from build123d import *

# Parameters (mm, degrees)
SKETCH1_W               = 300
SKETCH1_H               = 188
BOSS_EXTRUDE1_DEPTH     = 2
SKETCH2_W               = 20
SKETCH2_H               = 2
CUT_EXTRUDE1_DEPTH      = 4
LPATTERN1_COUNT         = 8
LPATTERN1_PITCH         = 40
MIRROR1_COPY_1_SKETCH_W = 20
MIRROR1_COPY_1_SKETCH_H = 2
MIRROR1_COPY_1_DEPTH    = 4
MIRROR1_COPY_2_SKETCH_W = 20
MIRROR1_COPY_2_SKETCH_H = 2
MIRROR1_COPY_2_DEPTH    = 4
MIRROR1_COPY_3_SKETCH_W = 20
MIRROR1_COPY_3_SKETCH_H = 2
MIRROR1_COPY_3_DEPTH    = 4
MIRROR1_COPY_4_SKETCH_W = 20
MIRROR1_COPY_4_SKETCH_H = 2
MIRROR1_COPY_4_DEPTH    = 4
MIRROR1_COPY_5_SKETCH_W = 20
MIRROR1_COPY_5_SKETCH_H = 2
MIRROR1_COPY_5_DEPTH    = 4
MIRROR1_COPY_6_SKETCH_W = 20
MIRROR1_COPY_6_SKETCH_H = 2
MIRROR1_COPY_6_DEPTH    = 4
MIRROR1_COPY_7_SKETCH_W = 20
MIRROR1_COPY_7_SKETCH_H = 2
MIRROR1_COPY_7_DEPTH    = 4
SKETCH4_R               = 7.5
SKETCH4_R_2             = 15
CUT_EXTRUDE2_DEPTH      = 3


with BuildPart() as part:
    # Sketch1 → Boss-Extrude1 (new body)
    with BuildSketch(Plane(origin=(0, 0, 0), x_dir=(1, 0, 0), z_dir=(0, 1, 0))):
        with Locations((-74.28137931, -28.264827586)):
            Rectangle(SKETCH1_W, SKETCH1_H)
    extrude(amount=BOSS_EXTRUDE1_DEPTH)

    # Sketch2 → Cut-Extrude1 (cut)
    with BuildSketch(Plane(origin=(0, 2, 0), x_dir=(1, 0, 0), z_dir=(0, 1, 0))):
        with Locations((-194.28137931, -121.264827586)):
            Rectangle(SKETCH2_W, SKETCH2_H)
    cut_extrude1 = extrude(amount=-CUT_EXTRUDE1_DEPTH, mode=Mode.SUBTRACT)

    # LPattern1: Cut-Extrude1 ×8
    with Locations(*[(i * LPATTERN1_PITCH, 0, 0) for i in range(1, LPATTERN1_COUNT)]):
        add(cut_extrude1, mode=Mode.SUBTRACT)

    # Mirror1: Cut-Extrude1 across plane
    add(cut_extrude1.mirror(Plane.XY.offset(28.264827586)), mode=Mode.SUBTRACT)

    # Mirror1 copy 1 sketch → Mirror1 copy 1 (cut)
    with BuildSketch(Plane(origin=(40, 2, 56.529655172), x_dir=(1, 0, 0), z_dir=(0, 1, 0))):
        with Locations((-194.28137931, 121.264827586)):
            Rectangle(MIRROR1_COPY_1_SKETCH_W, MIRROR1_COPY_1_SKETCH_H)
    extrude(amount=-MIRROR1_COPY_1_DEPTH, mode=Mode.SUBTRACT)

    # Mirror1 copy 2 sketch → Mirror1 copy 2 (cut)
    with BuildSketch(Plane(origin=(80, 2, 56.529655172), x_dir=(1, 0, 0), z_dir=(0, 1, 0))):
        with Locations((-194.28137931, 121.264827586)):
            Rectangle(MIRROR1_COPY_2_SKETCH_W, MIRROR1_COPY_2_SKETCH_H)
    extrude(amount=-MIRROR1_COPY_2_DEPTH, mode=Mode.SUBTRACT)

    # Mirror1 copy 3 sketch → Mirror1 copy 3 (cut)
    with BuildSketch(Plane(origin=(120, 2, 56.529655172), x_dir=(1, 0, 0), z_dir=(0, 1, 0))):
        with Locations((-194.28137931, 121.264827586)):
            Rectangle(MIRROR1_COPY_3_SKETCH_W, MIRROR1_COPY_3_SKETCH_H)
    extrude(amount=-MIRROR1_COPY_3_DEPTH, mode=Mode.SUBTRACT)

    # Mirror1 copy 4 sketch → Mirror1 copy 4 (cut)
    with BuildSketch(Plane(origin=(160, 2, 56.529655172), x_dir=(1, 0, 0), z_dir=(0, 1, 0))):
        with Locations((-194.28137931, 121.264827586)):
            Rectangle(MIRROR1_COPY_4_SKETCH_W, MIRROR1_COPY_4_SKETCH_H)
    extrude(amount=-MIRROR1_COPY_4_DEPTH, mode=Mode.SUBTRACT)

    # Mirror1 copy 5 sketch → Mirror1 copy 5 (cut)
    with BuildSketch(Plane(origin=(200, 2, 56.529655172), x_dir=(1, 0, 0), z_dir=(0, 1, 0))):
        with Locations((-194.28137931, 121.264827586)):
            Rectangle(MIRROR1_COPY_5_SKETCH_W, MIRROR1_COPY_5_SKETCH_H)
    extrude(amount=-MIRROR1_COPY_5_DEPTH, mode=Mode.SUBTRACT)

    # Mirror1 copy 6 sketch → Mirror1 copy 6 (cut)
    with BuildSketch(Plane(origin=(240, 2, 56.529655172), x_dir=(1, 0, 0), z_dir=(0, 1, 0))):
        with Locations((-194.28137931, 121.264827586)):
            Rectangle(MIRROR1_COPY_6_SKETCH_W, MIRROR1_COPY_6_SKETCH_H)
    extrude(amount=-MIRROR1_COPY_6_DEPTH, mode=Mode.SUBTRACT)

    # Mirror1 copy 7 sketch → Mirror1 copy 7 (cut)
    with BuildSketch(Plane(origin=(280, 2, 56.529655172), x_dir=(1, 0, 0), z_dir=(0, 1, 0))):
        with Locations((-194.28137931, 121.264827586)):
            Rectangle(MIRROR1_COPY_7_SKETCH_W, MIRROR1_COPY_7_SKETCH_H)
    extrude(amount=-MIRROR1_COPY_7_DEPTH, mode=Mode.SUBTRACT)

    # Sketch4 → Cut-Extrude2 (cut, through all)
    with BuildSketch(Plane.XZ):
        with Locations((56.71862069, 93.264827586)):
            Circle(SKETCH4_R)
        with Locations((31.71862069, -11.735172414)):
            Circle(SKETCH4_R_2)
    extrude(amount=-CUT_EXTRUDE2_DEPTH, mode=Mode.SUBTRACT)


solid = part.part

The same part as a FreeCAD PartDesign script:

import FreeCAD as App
import Part
import Sketcher
from FreeCAD import Vector


def add_polygon(sketch, points):
    """Adds a closed chain of lines whose ends are joined by coincident constraints."""
    first, n = sketch.GeometryCount, len(points)
    for a, b in zip(points, points[1:] + points[:1]):
        sketch.addGeometry(Part.LineSegment(App.Vector(*a, 0), App.Vector(*b, 0)), False)
    for i in range(n):
        sketch.addConstraint(Sketcher.Constraint("Coincident", first + i, 2, first + (i + 1) % n, 1))

doc = App.newDocument("Part")
params = doc.addObject("Spreadsheet::Sheet", "Params")
for row, (alias, value) in enumerate([
    ("sketch1_width", "300 mm"),
    ("sketch1_height", "188 mm"),
    ("pad1_length", "2 mm"),
    ("sketch2_width", "20 mm"),
    ("sketch2_height", "2 mm"),
    ("pocket1_length", "4 mm"),
    ("linearpattern_pitch", "40 mm"),
    ("sketch3_width", "20 mm"),
    ("sketch3_height", "2 mm"),
    ("pocket2_length", "4 mm"),
    ("sketch4_width", "20 mm"),
    ("sketch4_height", "2 mm"),
    ("pocket3_length", "4 mm"),
    ("sketch5_width", "20 mm"),
    ("sketch5_height", "2 mm"),
    ("pocket4_length", "4 mm"),
    ("sketch6_width", "20 mm"),
    ("sketch6_height", "2 mm"),
    ("pocket5_length", "4 mm"),
    ("sketch7_width", "20 mm"),
    ("sketch7_height", "2 mm"),
    ("pocket6_length", "4 mm"),
    ("sketch8_width", "20 mm"),
    ("sketch8_height", "2 mm"),
    ("pocket7_length", "4 mm"),
    ("sketch9_width", "20 mm"),
    ("sketch9_height", "2 mm"),
    ("pocket8_length", "4 mm"),
    ("sketch10_diameter", "15 mm"),
    ("sketch10_diameter2", "30 mm"),
], start=1):
    params.set(f"A{row}", alias)
    params.set(f"B{row}", "=" + value)
    params.setAlias(f"B{row}", alias)

body = doc.addObject("PartDesign::Body", "Body")

# Sketch on XZ plane
sketch1 = doc.addObject("Sketcher::SketchObject", "Sketch")
body.addObject(sketch1)
sketch1.AttachmentSupport = (doc.XZ_Plane, [""])
sketch1.MapMode = "FlatFace"
add_polygon(sketch1, [(-224, -66), (-224, 122), (76, 122), (76, -66)])  # lines 0-3
sketch1.addConstraint(Sketcher.Constraint("Vertical", 0))
sketch1.addConstraint(Sketcher.Constraint("Horizontal", 1))
sketch1.addConstraint(Sketcher.Constraint("Vertical", 2))
sketch1.addConstraint(Sketcher.Constraint("Horizontal", 3))
sketch1.addConstraint(Sketcher.Constraint("DistanceX", 1, 1, 1, 2, 300.0))
sketch1.addConstraint(Sketcher.Constraint("DistanceY", 0, 1, 0, 2, 188.0))
sketch1.addConstraint(Sketcher.Constraint("DistanceX", 0, 2, -1, 1, 224.281379))
sketch1.addConstraint(Sketcher.Constraint("DistanceY", -1, 1, 0, 2, 122.264828))
sketch1.setExpression("Constraints[8]", "Params.sketch1_width")
sketch1.setExpression("Constraints[9]", "Params.sketch1_height")
pad1 = doc.addObject("PartDesign::Pad", "Pad")
body.addObject(pad1)
pad1.Profile = sketch1
pad1.setExpression("Length", "Params.pad1_length")
pad1.Reversed = True

# Sketch on XZ plane
sketch2 = doc.addObject("Sketcher::SketchObject", "Sketch001")
body.addObject(sketch2)
sketch2.AttachmentSupport = (doc.XZ_Plane, [""])
sketch2.MapMode = "FlatFace"
sketch2.AttachmentOffset = App.Placement(Vector(0, 0, -2), App.Rotation())
add_polygon(sketch2, [(-204.3, 120.3), (-204.3, 122.3), (-184.3, 122.3), (-184.3, 120.3)])  # lines 0-3
sketch2.addConstraint(Sketcher.Constraint("Vertical", 0))
sketch2.addConstraint(Sketcher.Constraint("Horizontal", 1))
sketch2.addConstraint(Sketcher.Constraint("Vertical", 2))
sketch2.addConstraint(Sketcher.Constraint("Horizontal", 3))
sketch2.addConstraint(Sketcher.Constraint("DistanceX", 1, 1, 1, 2, 20.0))
sketch2.addConstraint(Sketcher.Constraint("DistanceY", 0, 1, 0, 2, 2.0))
sketch2.addConstraint(Sketcher.Constraint("DistanceX", 0, 2, -1, 1, 204.281379))
sketch2.addConstraint(Sketcher.Constraint("DistanceY", -1, 1, 0, 2, 122.264828))
sketch2.setExpression("Constraints[8]", "Params.sketch2_width")
sketch2.setExpression("Constraints[9]", "Params.sketch2_height")
pocket1 = doc.addObject("PartDesign::Pocket", "Pocket")
body.addObject(pocket1)
pocket1.Profile = sketch2
pocket1.setExpression("Length", "Params.pocket1_length")
pocket1.Reversed = True
doc.recompute()

linearpattern = doc.addObject("PartDesign::LinearPattern", "LinearPattern")
body.addObject(linearpattern)
linearpattern.Originals = [pocket1]
linearpattern.Direction = (doc.X_Axis, [""])
linearpattern.Mode = "offset"
linearpattern.setExpression("Offset", "Params.linearpattern_pitch")
linearpattern.Occurrences = 8
body.Tip = linearpattern
doc.recompute()

datumplane = doc.addObject("PartDesign::Plane", "DatumPlane")
body.addObject(datumplane)
datumplane.AttachmentSupport = (doc.XY_Plane, [""])
datumplane.MapMode = "FlatFace"
datumplane.AttachmentOffset = App.Placement(Vector(0, 0, 28.264828), App.Rotation())
mirrored = doc.addObject("PartDesign::Mirrored", "Mirrored")
body.addObject(mirrored)
mirrored.Originals = [pocket1]
mirrored.MirrorPlane = (datumplane, [""])
body.Tip = mirrored

# Sketch on XZ plane
sketch3 = doc.addObject("Sketcher::SketchObject", "Sketch002")
body.addObject(sketch3)
sketch3.AttachmentSupport = (doc.XZ_Plane, [""])
sketch3.MapMode = "FlatFace"
sketch3.AttachmentOffset = App.Placement(Vector(0, 0, -2), App.Rotation())
add_polygon(sketch3, [(-164.3, -65.7), (-164.3, -63.7), (-144.3, -63.7), (-144.3, -65.7)])  # lines 0-3
sketch3.addConstraint(Sketcher.Constraint("Vertical", 0))
sketch3.addConstraint(Sketcher.Constraint("Horizontal", 1))
sketch3.addConstraint(Sketcher.Constraint("Vertical", 2))
sketch3.addConstraint(Sketcher.Constraint("Horizontal", 3))
sketch3.addConstraint(Sketcher.Constraint("DistanceX", 1, 1, 1, 2, 20.0))
sketch3.addConstraint(Sketcher.Constraint("DistanceY", 0, 1, 0, 2, 2.0))
sketch3.addConstraint(Sketcher.Constraint("DistanceX", 0, 2, -1, 1, 164.281379))
sketch3.addConstraint(Sketcher.Constraint("DistanceY", 0, 2, -1, 1, 63.735172))
sketch3.setExpression("Constraints[8]", "Params.sketch3_width")
sketch3.setExpression("Constraints[9]", "Params.sketch3_height")
pocket2 = doc.addObject("PartDesign::Pocket", "Pocket001")
body.addObject(pocket2)
pocket2.Profile = sketch3
pocket2.setExpression("Length", "Params.pocket2_length")
pocket2.Reversed = True

# Sketch on XZ plane
sketch4 = doc.addObject("Sketcher::SketchObject", "Sketch003")
body.addObject(sketch4)
sketch4.AttachmentSupport = (doc.XZ_Plane, [""])
sketch4.MapMode = "FlatFace"
sketch4.AttachmentOffset = App.Placement(Vector(0, 0, -2), App.Rotation())
add_polygon(sketch4, [(-124.3, -65.7), (-124.3, -63.7), (-104.3, -63.7), (-104.3, -65.7)])  # lines 0-3
sketch4.addConstraint(Sketcher.Constraint("Vertical", 0))
sketch4.addConstraint(Sketcher.Constraint("Horizontal", 1))
sketch4.addConstraint(Sketcher.Constraint("Vertical", 2))
sketch4.addConstraint(Sketcher.Constraint("Horizontal", 3))
sketch4.addConstraint(Sketcher.Constraint("DistanceX", 1, 1, 1, 2, 20.0))
sketch4.addConstraint(Sketcher.Constraint("DistanceY", 0, 1, 0, 2, 2.0))
sketch4.addConstraint(Sketcher.Constraint("DistanceX", 0, 2, -1, 1, 124.281379))
sketch4.addConstraint(Sketcher.Constraint("DistanceY", 0, 2, -1, 1, 63.735172))
sketch4.setExpression("Constraints[8]", "Params.sketch4_width")
sketch4.setExpression("Constraints[9]", "Params.sketch4_height")
pocket3 = doc.addObject("PartDesign::Pocket", "Pocket002")
body.addObject(pocket3)
pocket3.Profile = sketch4
pocket3.setExpression("Length", "Params.pocket3_length")
pocket3.Reversed = True

# Sketch on XZ plane
sketch5 = doc.addObject("Sketcher::SketchObject", "Sketch004")
body.addObject(sketch5)
sketch5.AttachmentSupport = (doc.XZ_Plane, [""])
sketch5.MapMode = "FlatFace"
sketch5.AttachmentOffset = App.Placement(Vector(0, 0, -2), App.Rotation())
add_polygon(sketch5, [(-84.3, -65.7), (-84.3, -63.7), (-64.3, -63.7), (-64.3, -65.7)])  # lines 0-3
sketch5.addConstraint(Sketcher.Constraint("Vertical", 0))
sketch5.addConstraint(Sketcher.Constraint("Horizontal", 1))
sketch5.addConstraint(Sketcher.Constraint("Vertical", 2))
sketch5.addConstraint(Sketcher.Constraint("Horizontal", 3))
sketch5.addConstraint(Sketcher.Constraint("DistanceX", 1, 1, 1, 2, 20.0))
sketch5.addConstraint(Sketcher.Constraint("DistanceY", 0, 1, 0, 2, 2.0))
sketch5.addConstraint(Sketcher.Constraint("DistanceX", 0, 2, -1, 1, 84.281379))
sketch5.addConstraint(Sketcher.Constraint("DistanceY", 0, 2, -1, 1, 63.735172))
sketch5.setExpression("Constraints[8]", "Params.sketch5_width")
sketch5.setExpression("Constraints[9]", "Params.sketch5_height")
pocket4 = doc.addObject("PartDesign::Pocket", "Pocket003")
body.addObject(pocket4)
pocket4.Profile = sketch5
pocket4.setExpression("Length", "Params.pocket4_length")
pocket4.Reversed = True

# Sketch on XZ plane
sketch6 = doc.addObject("Sketcher::SketchObject", "Sketch005")
body.addObject(sketch6)
sketch6.AttachmentSupport = (doc.XZ_Plane, [""])
sketch6.MapMode = "FlatFace"
sketch6.AttachmentOffset = App.Placement(Vector(0, 0, -2), App.Rotation())
add_polygon(sketch6, [(-44.3, -65.7), (-44.3, -63.7), (-24.3, -63.7), (-24.3, -65.7)])  # lines 0-3
sketch6.addConstraint(Sketcher.Constraint("Vertical", 0))
sketch6.addConstraint(Sketcher.Constraint("Horizontal", 1))
sketch6.addConstraint(Sketcher.Constraint("Vertical", 2))
sketch6.addConstraint(Sketcher.Constraint("Horizontal", 3))
sketch6.addConstraint(Sketcher.Constraint("DistanceX", 1, 1, 1, 2, 20.0))
sketch6.addConstraint(Sketcher.Constraint("DistanceY", 0, 1, 0, 2, 2.0))
sketch6.addConstraint(Sketcher.Constraint("DistanceX", 0, 2, -1, 1, 44.281379))
sketch6.addConstraint(Sketcher.Constraint("DistanceY", 0, 2, -1, 1, 63.735172))
sketch6.setExpression("Constraints[8]", "Params.sketch6_width")
sketch6.setExpression("Constraints[9]", "Params.sketch6_height")
pocket5 = doc.addObject("PartDesign::Pocket", "Pocket004")
body.addObject(pocket5)
pocket5.Profile = sketch6
pocket5.setExpression("Length", "Params.pocket5_length")
pocket5.Reversed = True

# Sketch on XZ plane
sketch7 = doc.addObject("Sketcher::SketchObject", "Sketch006")
body.addObject(sketch7)
sketch7.AttachmentSupport = (doc.XZ_Plane, [""])
sketch7.MapMode = "FlatFace"
sketch7.AttachmentOffset = App.Placement(Vector(0, 0, -2), App.Rotation())
add_polygon(sketch7, [(-4.3, -65.7), (-4.3, -63.7), (15.7, -63.7), (15.7, -65.7)])  # lines 0-3
sketch7.addConstraint(Sketcher.Constraint("Vertical", 0))
sketch7.addConstraint(Sketcher.Constraint("Horizontal", 1))
sketch7.addConstraint(Sketcher.Constraint("Vertical", 2))
sketch7.addConstraint(Sketcher.Constraint("Horizontal", 3))
sketch7.addConstraint(Sketcher.Constraint("DistanceX", 1, 1, 1, 2, 20.0))
sketch7.addConstraint(Sketcher.Constraint("DistanceY", 0, 1, 0, 2, 2.0))
sketch7.addConstraint(Sketcher.Constraint("DistanceX", 0, 2, -1, 1, 4.281379))
sketch7.addConstraint(Sketcher.Constraint("DistanceY", 0, 2, -1, 1, 63.735172))
sketch7.setExpression("Constraints[8]", "Params.sketch7_width")
sketch7.setExpression("Constraints[9]", "Params.sketch7_height")
pocket6 = doc.addObject("PartDesign::Pocket", "Pocket005")
body.addObject(pocket6)
pocket6.Profile = sketch7
pocket6.setExpression("Length", "Params.pocket6_length")
pocket6.Reversed = True

# Sketch on XZ plane
sketch8 = doc.addObject("Sketcher::SketchObject", "Sketch007")
body.addObject(sketch8)
sketch8.AttachmentSupport = (doc.XZ_Plane, [""])
sketch8.MapMode = "FlatFace"
sketch8.AttachmentOffset = App.Placement(Vector(0, 0, -2), App.Rotation())
add_polygon(sketch8, [(35.7, -65.7), (35.7, -63.7), (55.7, -63.7), (55.7, -65.7)])  # lines 0-3
sketch8.addConstraint(Sketcher.Constraint("Vertical", 0))
sketch8.addConstraint(Sketcher.Constraint("Horizontal", 1))
sketch8.addConstraint(Sketcher.Constraint("Vertical", 2))
sketch8.addConstraint(Sketcher.Constraint("Horizontal", 3))
sketch8.addConstraint(Sketcher.Constraint("DistanceX", 1, 1, 1, 2, 20.0))
sketch8.addConstraint(Sketcher.Constraint("DistanceY", 0, 1, 0, 2, 2.0))
sketch8.addConstraint(Sketcher.Constraint("DistanceX", -1, 1, 0, 2, 35.718621))
sketch8.addConstraint(Sketcher.Constraint("DistanceY", 0, 2, -1, 1, 63.735172))
sketch8.setExpression("Constraints[8]", "Params.sketch8_width")
sketch8.setExpression("Constraints[9]", "Params.sketch8_height")
pocket7 = doc.addObject("PartDesign::Pocket", "Pocket006")
body.addObject(pocket7)
pocket7.Profile = sketch8
pocket7.setExpression("Length", "Params.pocket7_length")
pocket7.Reversed = True

# Sketch on XZ plane
sketch9 = doc.addObject("Sketcher::SketchObject", "Sketch008")
body.addObject(sketch9)
sketch9.AttachmentSupport = (doc.XZ_Plane, [""])
sketch9.MapMode = "FlatFace"
sketch9.AttachmentOffset = App.Placement(Vector(0, 0, -2), App.Rotation())
add_polygon(sketch9, [(75.7, -65.7), (75.7, -63.7), (95.7, -63.7), (95.7, -65.7)])  # lines 0-3
sketch9.addConstraint(Sketcher.Constraint("Vertical", 0))
sketch9.addConstraint(Sketcher.Constraint("Horizontal", 1))
sketch9.addConstraint(Sketcher.Constraint("Vertical", 2))
sketch9.addConstraint(Sketcher.Constraint("Horizontal", 3))
sketch9.addConstraint(Sketcher.Constraint("DistanceX", 1, 1, 1, 2, 20.0))
sketch9.addConstraint(Sketcher.Constraint("DistanceY", 0, 1, 0, 2, 2.0))
sketch9.addConstraint(Sketcher.Constraint("DistanceX", -1, 1, 0, 2, 75.718621))
sketch9.addConstraint(Sketcher.Constraint("DistanceY", 0, 2, -1, 1, 63.735172))
sketch9.setExpression("Constraints[8]", "Params.sketch9_width")
sketch9.setExpression("Constraints[9]", "Params.sketch9_height")
pocket8 = doc.addObject("PartDesign::Pocket", "Pocket007")
body.addObject(pocket8)
pocket8.Profile = sketch9
pocket8.setExpression("Length", "Params.pocket8_length")
pocket8.Reversed = True

# Sketch on XZ plane
sketch10 = doc.addObject("Sketcher::SketchObject", "Sketch009")
body.addObject(sketch10)
sketch10.AttachmentSupport = (doc.XZ_Plane, [""])
sketch10.MapMode = "FlatFace"
sketch10.addGeometry(Part.Circle(Vector(57, 93, 0), Vector(0, 0, 1), 8), False)
sketch10.addGeometry(Part.Circle(Vector(32, -12, 0), Vector(0, 0, 1), 15), False)
sketch10.addConstraint(Sketcher.Constraint("Diameter", 0, 15.0))
sketch10.addConstraint(Sketcher.Constraint("Diameter", 1, 30.0))
sketch10.addConstraint(Sketcher.Constraint("DistanceX", 1, 3, 0, 3, 25.0))
sketch10.addConstraint(Sketcher.Constraint("DistanceY", 1, 3, 0, 3, 105.0))
sketch10.addConstraint(Sketcher.Constraint("DistanceX", -1, 1, 0, 3, 56.718621))
sketch10.addConstraint(Sketcher.Constraint("DistanceY", -1, 1, 0, 3, 93.264828))
sketch10.setExpression("Constraints[0]", "Params.sketch10_diameter")
sketch10.setExpression("Constraints[1]", "Params.sketch10_diameter2")
pocket9 = doc.addObject("PartDesign::Pocket", "Pocket008")
body.addObject(pocket9)
pocket9.Profile = sketch10
pocket9.Type = "ThroughAll"

doc.recompute()
